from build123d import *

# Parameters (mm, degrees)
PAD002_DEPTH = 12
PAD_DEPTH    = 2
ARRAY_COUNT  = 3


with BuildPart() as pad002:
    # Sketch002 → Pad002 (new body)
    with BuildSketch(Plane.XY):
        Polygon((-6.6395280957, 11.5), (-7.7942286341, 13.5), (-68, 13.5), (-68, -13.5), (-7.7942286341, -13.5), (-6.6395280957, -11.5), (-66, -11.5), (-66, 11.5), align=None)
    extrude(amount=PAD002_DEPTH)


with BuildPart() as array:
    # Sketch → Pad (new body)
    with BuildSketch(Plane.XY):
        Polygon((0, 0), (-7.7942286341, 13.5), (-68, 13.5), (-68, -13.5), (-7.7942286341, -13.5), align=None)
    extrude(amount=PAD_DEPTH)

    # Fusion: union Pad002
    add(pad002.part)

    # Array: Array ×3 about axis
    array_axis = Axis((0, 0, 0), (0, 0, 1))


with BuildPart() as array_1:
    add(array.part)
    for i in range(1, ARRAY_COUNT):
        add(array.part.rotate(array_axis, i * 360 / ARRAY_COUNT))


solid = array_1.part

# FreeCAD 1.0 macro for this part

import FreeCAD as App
import Part
import Sketcher

V = App.Vector
Q = App.Units.Quantity

doc = App.newDocument("Part")
body = doc.addObject("PartDesign::Body", "Body")

# Sketch on XY plane
sketch1 = doc.addObject("Sketcher::SketchObject", "Sketch")
body.addObject(sketch1)
sketch1.AttachmentSupport = (doc.XY_Plane, [""])
sketch1.MapMode = "FlatFace"
sketch1.addGeometry([
    Part.LineSegment(V(-6.639528, 11.5, 0), V(-7.794229, 13.5, 0)),  # 0
    Part.LineSegment(V(-7.794229, 13.5, 0), V(-68, 13.5, 0)),  # 1
    Part.LineSegment(V(-68, 13.5, 0), V(-68, -13.5, 0)),  # 2
    Part.LineSegment(V(-68, -13.5, 0), V(-7.794229, -13.5, 0)),  # 3
    Part.LineSegment(V(-7.794229, -13.5, 0), V(-6.639528, -11.5, 0)),  # 4
    Part.LineSegment(V(-6.639528, -11.5, 0), V(-66, -11.5, 0)),  # 5
    Part.LineSegment(V(-66, -11.5, 0), V(-66, 11.5, 0)),  # 6
    Part.LineSegment(V(-66, 11.5, 0), V(-6.639528, 11.5, 0)),  # 7
], False)
sketch1.addConstraint([
    Sketcher.Constraint("Coincident", 0, 2, 1, 1),
    Sketcher.Constraint("Coincident", 1, 2, 2, 1),
    Sketcher.Constraint("Coincident", 2, 2, 3, 1),
    Sketcher.Constraint("Coincident", 3, 2, 4, 1),
    Sketcher.Constraint("Coincident", 4, 2, 5, 1),
    Sketcher.Constraint("Coincident", 5, 2, 6, 1),
    Sketcher.Constraint("Coincident", 6, 2, 7, 1),
    Sketcher.Constraint("Coincident", 7, 2, 0, 1),
    Sketcher.Constraint("Horizontal", 1),
    Sketcher.Constraint("Vertical", 2),
    Sketcher.Constraint("Horizontal", 3),
    Sketcher.Constraint("Horizontal", 5),
    Sketcher.Constraint("Vertical", 6),
    Sketcher.Constraint("Horizontal", 7),
    Sketcher.Constraint("Symmetric", 0, 2, 3, 2, -1),
    Sketcher.Constraint("Symmetric", 4, 2, 7, 2, -1),
    Sketcher.Constraint("DistanceY", 2, 2, 2, 1, Q("27 mm")),
    Sketcher.Constraint("DistanceY", 6, 1, 6, 2, Q("23 mm")),
    Sketcher.Constraint("Angle", 0, Q("120 deg")),
    Sketcher.Constraint("DistanceX", 1, 2, -1, 1, Q("68 mm")),
    Sketcher.Constraint("DistanceX", 5, 2, -1, 1, Q("66 mm")),
    Sketcher.Constraint("DistanceX", 1, 2, 1, 1, Q("60.205771 mm")),
])
pad1 = doc.addObject("PartDesign::Pad", "Pad")
body.addObject(pad1)
pad1.Profile = sketch1
pad1.Length = 12
body2 = doc.addObject("PartDesign::Body", "Body001")

# Sketch on XY plane
sketch2 = doc.addObject("Sketcher::SketchObject", "Sketch001")
body2.addObject(sketch2)
sketch2.AttachmentSupport = (doc.getObject("XY_Plane001"), [""])
sketch2.MapMode = "FlatFace"
sketch2.addGeometry([
    Part.LineSegment(V(0, 0, 0), V(-7.794229, 13.5, 0)),  # 0
    Part.LineSegment(V(-7.794229, 13.5, 0), V(-68, 13.5, 0)),  # 1
    Part.LineSegment(V(-68, 13.5, 0), V(-68, -13.5, 0)),  # 2
    Part.LineSegment(V(-68, -13.5, 0), V(-7.794229, -13.5, 0)),  # 3
    Part.LineSegment(V(-7.794229, -13.5, 0), V(0, 0, 0)),  # 4
], False)
sketch2.addConstraint([
    Sketcher.Constraint("Coincident", 0, 2, 1, 1),
    Sketcher.Constraint("Coincident", 1, 2, 2, 1),
    Sketcher.Constraint("Coincident", 2, 2, 3, 1),
    Sketcher.Constraint("Coincident", 3, 2, 4, 1),
    Sketcher.Constraint("Coincident", 4, 2, 0, 1),
    Sketcher.Constraint("Horizontal", 1),
    Sketcher.Constraint("Vertical", 2),
    Sketcher.Constraint("Horizontal", 3),
    Sketcher.Constraint("Coincident", 4, 2, -1, 1),
    Sketcher.Constraint("Symmetric", 0, 2, 3, 2, -1),
    Sketcher.Constraint("DistanceY", 2, 2, 2, 1, Q("27 mm")),
    Sketcher.Constraint("Angle", 0, Q("120 deg")),
    Sketcher.Constraint("DistanceX", 1, 2, -1, 1, Q("68 mm")),
])
pad2 = doc.addObject("PartDesign::Pad", "Pad001")
body2.addObject(pad2)
pad2.Profile = sketch2
pad2.Length = 2
doc.recompute()

boolean = doc.addObject("PartDesign::Boolean", "Boolean")
body2.addObject(boolean)
boolean.Type = "Fuse"
boolean.addObjects([body])
body3 = doc.addObject("PartDesign::Body", "Body002")
doc.recompute()

body3.BaseFeature = body2
doc.recompute()

body4 = doc.addObject("PartDesign::Body", "Body003")
body4.BaseFeature = body2
body4.Placement = App.Placement(V(0, 0, 0), App.Rotation(V(0, 0, 1), 120))
boolean2 = doc.addObject("PartDesign::Boolean", "Boolean001")
body3.addObject(boolean2)
boolean2.Type = "Fuse"
boolean2.addObjects([body4])
doc.recompute()

body2.Placement = App.Placement(V(0, 0, 0), App.Rotation(V(0, 0, 1), 240))
boolean3 = doc.addObject("PartDesign::Boolean", "Boolean002")
body3.addObject(boolean3)
boolean3.Type = "Fuse"
boolean3.addObjects([body2])

doc.recompute()
